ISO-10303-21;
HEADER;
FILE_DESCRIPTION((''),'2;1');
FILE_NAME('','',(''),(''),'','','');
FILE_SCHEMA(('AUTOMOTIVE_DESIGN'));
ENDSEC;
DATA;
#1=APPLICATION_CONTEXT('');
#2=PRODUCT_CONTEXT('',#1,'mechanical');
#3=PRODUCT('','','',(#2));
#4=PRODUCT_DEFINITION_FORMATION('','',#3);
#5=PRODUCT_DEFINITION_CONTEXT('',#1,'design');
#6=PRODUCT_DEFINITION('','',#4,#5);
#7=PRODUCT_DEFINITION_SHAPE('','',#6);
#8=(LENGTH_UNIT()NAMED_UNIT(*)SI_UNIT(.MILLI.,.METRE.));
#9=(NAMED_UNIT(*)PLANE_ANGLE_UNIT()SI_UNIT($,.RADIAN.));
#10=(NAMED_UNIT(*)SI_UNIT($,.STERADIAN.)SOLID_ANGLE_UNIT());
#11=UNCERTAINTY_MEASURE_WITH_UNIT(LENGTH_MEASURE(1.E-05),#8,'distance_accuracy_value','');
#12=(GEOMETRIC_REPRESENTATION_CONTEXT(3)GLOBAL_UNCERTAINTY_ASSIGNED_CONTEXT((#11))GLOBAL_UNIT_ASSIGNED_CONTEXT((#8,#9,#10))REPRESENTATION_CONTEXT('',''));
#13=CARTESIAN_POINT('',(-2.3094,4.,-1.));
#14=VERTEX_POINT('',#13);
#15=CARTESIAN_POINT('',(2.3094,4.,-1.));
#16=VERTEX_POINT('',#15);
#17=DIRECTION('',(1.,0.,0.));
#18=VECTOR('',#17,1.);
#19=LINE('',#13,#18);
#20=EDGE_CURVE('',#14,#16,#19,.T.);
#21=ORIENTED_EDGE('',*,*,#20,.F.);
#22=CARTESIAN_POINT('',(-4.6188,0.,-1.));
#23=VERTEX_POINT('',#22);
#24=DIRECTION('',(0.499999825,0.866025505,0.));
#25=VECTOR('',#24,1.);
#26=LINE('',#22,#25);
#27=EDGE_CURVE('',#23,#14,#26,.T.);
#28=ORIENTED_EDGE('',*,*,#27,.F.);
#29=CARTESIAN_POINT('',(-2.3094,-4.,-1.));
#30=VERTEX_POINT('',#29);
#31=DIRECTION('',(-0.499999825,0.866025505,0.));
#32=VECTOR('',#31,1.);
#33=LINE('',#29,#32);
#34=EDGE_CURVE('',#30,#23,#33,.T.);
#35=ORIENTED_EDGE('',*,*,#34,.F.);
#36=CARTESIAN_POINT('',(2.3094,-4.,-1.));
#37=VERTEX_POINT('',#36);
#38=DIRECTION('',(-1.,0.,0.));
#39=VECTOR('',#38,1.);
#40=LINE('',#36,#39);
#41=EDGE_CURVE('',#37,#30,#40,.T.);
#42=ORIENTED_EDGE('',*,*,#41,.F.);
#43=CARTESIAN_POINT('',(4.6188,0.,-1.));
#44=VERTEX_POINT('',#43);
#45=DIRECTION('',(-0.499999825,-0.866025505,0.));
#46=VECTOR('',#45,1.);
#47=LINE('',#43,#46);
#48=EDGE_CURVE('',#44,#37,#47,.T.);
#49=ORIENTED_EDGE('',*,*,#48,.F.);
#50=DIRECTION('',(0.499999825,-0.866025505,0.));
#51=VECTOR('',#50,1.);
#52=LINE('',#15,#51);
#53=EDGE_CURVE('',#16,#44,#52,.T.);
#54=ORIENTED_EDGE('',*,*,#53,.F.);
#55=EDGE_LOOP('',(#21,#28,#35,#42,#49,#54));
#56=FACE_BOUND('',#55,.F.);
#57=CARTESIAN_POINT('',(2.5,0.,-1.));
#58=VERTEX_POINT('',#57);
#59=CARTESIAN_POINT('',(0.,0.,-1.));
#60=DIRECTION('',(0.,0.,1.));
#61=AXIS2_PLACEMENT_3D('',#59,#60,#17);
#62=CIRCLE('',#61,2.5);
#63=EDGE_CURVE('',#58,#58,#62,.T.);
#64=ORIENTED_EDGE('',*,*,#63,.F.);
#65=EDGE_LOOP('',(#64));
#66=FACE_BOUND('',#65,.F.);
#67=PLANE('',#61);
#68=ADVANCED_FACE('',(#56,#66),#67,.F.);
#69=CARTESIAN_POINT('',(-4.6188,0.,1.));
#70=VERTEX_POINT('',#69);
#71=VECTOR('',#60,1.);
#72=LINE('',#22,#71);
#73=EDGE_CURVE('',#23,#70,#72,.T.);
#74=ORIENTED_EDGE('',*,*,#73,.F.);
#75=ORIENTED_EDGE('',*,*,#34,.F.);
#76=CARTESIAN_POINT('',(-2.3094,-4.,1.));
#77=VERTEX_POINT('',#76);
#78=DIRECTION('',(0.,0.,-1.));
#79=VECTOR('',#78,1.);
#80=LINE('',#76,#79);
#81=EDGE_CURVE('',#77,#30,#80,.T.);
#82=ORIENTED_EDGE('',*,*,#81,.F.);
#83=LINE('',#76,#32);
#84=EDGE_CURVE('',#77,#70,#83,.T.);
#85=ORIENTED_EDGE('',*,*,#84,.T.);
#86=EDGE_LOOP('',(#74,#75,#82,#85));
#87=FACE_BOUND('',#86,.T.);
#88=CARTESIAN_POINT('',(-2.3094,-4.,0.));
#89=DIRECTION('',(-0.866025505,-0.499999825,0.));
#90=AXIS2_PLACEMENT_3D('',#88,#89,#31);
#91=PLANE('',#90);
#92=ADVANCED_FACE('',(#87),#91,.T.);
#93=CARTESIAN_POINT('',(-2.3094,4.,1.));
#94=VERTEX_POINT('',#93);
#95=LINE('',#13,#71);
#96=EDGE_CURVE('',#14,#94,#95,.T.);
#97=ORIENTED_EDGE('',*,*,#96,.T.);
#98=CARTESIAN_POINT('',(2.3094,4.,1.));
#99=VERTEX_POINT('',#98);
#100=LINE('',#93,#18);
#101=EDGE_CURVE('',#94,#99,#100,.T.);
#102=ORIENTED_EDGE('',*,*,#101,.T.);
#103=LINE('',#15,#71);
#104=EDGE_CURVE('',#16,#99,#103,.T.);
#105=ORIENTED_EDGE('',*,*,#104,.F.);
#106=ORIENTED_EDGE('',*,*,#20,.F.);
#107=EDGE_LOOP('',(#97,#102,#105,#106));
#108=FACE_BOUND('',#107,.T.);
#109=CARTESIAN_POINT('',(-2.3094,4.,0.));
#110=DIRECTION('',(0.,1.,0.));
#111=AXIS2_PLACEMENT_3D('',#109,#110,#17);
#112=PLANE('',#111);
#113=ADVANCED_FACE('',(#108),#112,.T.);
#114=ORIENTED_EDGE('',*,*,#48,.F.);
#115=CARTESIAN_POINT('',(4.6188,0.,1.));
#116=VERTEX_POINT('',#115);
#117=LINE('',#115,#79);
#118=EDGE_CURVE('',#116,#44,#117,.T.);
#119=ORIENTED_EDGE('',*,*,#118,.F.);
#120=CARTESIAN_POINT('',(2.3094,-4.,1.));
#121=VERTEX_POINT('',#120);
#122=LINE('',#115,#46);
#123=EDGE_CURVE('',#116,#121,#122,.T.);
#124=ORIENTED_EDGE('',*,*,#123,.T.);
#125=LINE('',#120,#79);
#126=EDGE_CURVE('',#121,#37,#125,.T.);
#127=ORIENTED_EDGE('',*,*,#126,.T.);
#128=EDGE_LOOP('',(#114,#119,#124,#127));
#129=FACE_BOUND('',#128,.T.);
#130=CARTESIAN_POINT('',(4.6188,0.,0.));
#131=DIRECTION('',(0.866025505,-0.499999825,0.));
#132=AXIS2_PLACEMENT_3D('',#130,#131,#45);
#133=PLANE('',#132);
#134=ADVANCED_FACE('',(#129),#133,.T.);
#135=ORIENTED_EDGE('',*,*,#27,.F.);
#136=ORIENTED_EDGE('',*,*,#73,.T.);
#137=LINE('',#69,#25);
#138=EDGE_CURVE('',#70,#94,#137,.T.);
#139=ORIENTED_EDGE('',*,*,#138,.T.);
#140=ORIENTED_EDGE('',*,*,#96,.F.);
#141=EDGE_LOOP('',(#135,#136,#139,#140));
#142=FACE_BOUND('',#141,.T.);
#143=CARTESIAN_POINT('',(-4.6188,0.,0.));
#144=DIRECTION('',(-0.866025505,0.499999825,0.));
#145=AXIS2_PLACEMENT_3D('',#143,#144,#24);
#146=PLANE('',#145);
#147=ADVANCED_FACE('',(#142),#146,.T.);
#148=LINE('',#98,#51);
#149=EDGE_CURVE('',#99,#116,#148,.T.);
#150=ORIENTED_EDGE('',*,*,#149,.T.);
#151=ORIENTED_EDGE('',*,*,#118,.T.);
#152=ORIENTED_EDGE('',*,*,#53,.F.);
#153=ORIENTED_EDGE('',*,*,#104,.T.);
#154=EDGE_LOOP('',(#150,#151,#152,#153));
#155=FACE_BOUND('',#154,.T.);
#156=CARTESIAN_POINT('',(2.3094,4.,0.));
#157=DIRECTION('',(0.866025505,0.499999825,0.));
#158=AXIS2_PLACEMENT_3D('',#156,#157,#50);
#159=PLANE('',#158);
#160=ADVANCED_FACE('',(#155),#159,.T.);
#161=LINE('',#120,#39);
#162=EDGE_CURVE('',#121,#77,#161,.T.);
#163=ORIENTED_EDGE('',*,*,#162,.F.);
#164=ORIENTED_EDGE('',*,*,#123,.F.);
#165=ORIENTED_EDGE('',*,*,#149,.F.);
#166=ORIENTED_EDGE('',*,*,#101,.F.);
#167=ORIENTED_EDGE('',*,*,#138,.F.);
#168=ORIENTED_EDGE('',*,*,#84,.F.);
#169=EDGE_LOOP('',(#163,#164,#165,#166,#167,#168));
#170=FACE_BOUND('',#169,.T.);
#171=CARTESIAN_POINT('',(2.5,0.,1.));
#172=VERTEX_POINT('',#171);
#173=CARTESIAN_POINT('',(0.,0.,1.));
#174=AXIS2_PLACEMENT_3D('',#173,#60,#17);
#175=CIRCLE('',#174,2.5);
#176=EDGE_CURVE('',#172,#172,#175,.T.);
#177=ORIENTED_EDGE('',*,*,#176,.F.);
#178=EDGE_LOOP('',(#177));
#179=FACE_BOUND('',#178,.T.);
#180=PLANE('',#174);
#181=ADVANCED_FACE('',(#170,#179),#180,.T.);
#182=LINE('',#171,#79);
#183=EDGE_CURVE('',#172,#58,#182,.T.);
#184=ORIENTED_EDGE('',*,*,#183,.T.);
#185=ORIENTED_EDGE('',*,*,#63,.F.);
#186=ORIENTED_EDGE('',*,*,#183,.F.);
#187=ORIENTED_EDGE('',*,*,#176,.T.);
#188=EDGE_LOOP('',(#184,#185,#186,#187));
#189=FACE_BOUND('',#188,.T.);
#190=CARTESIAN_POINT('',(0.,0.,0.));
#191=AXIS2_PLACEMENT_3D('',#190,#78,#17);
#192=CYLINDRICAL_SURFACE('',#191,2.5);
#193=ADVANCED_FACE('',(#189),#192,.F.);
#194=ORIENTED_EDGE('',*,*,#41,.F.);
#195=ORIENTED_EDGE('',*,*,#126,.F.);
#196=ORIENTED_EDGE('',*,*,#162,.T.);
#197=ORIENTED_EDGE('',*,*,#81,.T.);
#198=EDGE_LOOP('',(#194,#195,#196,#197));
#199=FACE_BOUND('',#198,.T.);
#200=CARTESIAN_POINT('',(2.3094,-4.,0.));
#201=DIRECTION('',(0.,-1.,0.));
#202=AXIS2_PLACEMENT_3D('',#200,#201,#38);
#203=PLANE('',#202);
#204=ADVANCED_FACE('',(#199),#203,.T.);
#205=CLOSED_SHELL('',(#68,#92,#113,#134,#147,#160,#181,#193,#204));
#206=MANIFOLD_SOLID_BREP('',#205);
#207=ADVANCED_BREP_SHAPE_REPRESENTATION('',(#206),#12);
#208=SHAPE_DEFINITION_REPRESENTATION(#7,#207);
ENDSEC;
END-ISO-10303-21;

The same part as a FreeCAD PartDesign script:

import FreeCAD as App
import Part
import Sketcher
from FreeCAD import Vector
Q = App.Units.Quantity


def add_polygon(sketch, points):
    """Adds a closed chain of lines whose ends are joined by coincident constraints."""
    first, n = sketch.GeometryCount, len(points)
    for a, b in zip(points, points[1:] + points[:1]):
        sketch.addGeometry(Part.LineSegment(App.Vector(*a, 0), App.Vector(*b, 0)), False)
    for i in range(n):
        sketch.addConstraint(Sketcher.Constraint("Coincident", first + i, 2, first + (i + 1) % n, 1))

doc = App.newDocument("Part")
body = doc.addObject("PartDesign::Body", "Body")

# Sketch on XY plane
sketch1 = body.newObject("Sketcher::SketchObject", "Sketch")
sketch1.AttachmentSupport = (doc.getObject("XY_Plane"), [""])
sketch1.MapMode = "FlatFace"
add_polygon(sketch1, [(4.6, 0), (2.3, 4), (-2.3, 4), (-4.6, 0), (-2.3, -4), (2.3, -4)])  # lines 0-5
sketch1.addGeometry(Part.Circle(Vector(0, 0, 0), Vector(0, 0, 1), 2.5), False)  # 6
sketch1.addConstraint(Sketcher.Constraint("Horizontal", 1))
sketch1.addConstraint(Sketcher.Constraint("Horizontal", 4))
sketch1.addConstraint(Sketcher.Constraint("Coincident", 6, 3, -1, 1))
sketch1.addConstraint(Sketcher.Constraint("Symmetric", 0, 2, 3, 2, -1, 1))
sketch1.addConstraint(Sketcher.Constraint("Symmetric", 2, 2, 5, 2, -1, 1))
sketch1.addConstraint(Sketcher.Constraint("PointOnObject", 2, 2, -1))
sketch1.addConstraint(Sketcher.Constraint("Parallel", 2, 5))
sketch1.addConstraint(Sketcher.Constraint("Vertical", 1, 2, 3, 2))
sketch1.addConstraint(Sketcher.Constraint("Diameter", 6, 5.0))
sketch1.addConstraint(Sketcher.Constraint("DistanceY", -1, 1, 0, 2, 4.0))
sketch1.addConstraint(Sketcher.Constraint("Angle", 0, Q("120 deg")))
sketch1.addConstraint(Sketcher.Constraint("DistanceX", 1, 2, 1, 1, 4.6188))
pad1 = body.newObject("PartDesign::Pad", "Pad")
pad1.Profile = sketch1
pad1.Length = 2
pad1.Midplane = True

doc.recompute()
